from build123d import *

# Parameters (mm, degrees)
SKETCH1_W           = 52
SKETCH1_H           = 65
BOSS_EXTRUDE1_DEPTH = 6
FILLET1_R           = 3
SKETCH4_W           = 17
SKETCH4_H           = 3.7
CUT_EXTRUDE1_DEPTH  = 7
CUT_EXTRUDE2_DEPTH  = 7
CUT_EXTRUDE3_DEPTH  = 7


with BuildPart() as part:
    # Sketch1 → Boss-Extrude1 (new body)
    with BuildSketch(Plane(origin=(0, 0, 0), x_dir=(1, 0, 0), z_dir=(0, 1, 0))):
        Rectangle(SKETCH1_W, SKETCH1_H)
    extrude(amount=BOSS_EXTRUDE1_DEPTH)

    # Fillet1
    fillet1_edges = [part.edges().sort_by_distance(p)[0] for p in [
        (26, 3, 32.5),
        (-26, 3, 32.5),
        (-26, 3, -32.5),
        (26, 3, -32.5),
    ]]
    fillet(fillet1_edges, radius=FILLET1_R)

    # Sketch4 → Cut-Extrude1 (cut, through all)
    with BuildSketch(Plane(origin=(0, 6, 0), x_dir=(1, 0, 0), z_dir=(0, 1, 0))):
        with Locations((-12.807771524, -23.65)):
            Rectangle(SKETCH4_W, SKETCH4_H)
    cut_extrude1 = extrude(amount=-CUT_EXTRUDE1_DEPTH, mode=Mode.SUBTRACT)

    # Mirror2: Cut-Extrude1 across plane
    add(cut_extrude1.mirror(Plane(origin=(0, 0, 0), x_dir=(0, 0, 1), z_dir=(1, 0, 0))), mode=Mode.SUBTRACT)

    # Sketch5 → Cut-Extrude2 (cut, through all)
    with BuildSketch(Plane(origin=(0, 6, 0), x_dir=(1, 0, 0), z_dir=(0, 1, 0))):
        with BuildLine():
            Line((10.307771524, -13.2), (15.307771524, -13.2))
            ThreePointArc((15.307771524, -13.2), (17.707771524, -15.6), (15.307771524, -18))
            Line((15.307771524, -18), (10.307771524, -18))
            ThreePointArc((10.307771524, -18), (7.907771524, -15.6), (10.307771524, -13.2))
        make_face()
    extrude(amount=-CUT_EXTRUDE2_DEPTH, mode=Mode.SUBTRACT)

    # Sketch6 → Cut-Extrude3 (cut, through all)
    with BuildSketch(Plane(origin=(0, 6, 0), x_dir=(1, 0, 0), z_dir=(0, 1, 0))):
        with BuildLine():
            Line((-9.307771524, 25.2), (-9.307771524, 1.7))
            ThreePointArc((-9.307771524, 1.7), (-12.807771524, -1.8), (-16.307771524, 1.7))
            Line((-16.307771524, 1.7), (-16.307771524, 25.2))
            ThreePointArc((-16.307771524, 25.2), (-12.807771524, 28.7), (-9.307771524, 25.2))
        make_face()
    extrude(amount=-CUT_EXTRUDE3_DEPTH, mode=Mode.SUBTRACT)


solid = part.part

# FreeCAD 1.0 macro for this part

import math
import FreeCAD as App
import Part
import Sketcher
from FreeCAD import Vector


def edges_at(feature, points):
    """Names of the edges that pass closest to the given points."""
    edges = feature.Shape.Edges
    near = lambda p: min(range(len(edges)), key=lambda i: edges[i].distToShape(Part.Vertex(*p))[0])
    return sorted({f"Edge{near(p) + 1}" for p in points})

doc = App.newDocument("Part")
body = doc.addObject("PartDesign::Body", "Body")

# Sketch on XZ plane
sketch1 = body.newObject("Sketcher::SketchObject", "Sketch")
sketch1.AttachmentSupport = (doc.getObject("XZ_Plane"), [""])
sketch1.MapMode = "FlatFace"
sketch1.addGeometry(Part.LineSegment(Vector(-26, -32, 0), Vector(-26, 32, 0)), False)
sketch1.addGeometry(Part.LineSegment(Vector(-26, 32, 0), Vector(26, 32, 0)), False)
sketch1.addGeometry(Part.LineSegment(Vector(26, 32, 0), Vector(26, -32, 0)), False)
sketch1.addGeometry(Part.LineSegment(Vector(26, -32, 0), Vector(-26, -32, 0)), False)
sketch1.addConstraint(Sketcher.Constraint("Coincident", 0, 2, 1, 1))
sketch1.addConstraint(Sketcher.Constraint("Coincident", 1, 2, 2, 1))
sketch1.addConstraint(Sketcher.Constraint("Coincident", 2, 2, 3, 1))
sketch1.addConstraint(Sketcher.Constraint("Coincident", 3, 2, 0, 1))
sketch1.addConstraint(Sketcher.Constraint("Vertical", 0))
sketch1.addConstraint(Sketcher.Constraint("Horizontal", 1))
sketch1.addConstraint(Sketcher.Constraint("Vertical", 2))
sketch1.addConstraint(Sketcher.Constraint("Horizontal", 3))
sketch1.addConstraint(Sketcher.Constraint("Symmetric", 0, 2, 2, 2, -1, 1))
sketch1.addConstraint(Sketcher.Constraint("DistanceX", 1, 1, 1, 2, 52.0))
sketch1.addConstraint(Sketcher.Constraint("DistanceY", 0, 1, 0, 2, 65.0))
pad1 = body.newObject("PartDesign::Pad", "Pad")
pad1.Profile = sketch1
pad1.Length = 6
pad1.Reversed = True
doc.recompute()

fillet = body.newObject("PartDesign::Fillet", "Fillet")
fillet.Base = (pad1, edges_at(pad1, [
    (26, 3, 32.5),
    (-26, 3, 32.5),
    (-26, 3, -32.5),
    (26, 3, -32.5),
]))
fillet.Radius = 3

# Sketch on XZ plane
sketch2 = body.newObject("Sketcher::SketchObject", "Sketch001")
sketch2.AttachmentSupport = (doc.getObject("XZ_Plane"), [""])
sketch2.MapMode = "FlatFace"
sketch2.AttachmentOffset = App.Placement(Vector(0, 0, -6), App.Rotation())
sketch2.addGeometry(Part.LineSegment(Vector(-21.3, 21.8, 0), Vector(-21.3, 25.5, 0)), False)
sketch2.addGeometry(Part.LineSegment(Vector(-21.3, 25.5, 0), Vector(-4.3, 25.5, 0)), False)
sketch2.addGeometry(Part.LineSegment(Vector(-4.3, 25.5, 0), Vector(-4.3, 21.8, 0)), False)
sketch2.addGeometry(Part.LineSegment(Vector(-4.3, 21.8, 0), Vector(-21.3, 21.8, 0)), False)
sketch2.addConstraint(Sketcher.Constraint("Coincident", 0, 2, 1, 1))
sketch2.addConstraint(Sketcher.Constraint("Coincident", 1, 2, 2, 1))
sketch2.addConstraint(Sketcher.Constraint("Coincident", 2, 2, 3, 1))
sketch2.addConstraint(Sketcher.Constraint("Coincident", 3, 2, 0, 1))
sketch2.addConstraint(Sketcher.Constraint("Vertical", 0))
sketch2.addConstraint(Sketcher.Constraint("Horizontal", 1))
sketch2.addConstraint(Sketcher.Constraint("Vertical", 2))
sketch2.addConstraint(Sketcher.Constraint("Horizontal", 3))
sketch2.addConstraint(Sketcher.Constraint("DistanceX", 1, 1, 1, 2, 17.0))
sketch2.addConstraint(Sketcher.Constraint("DistanceY", 0, 1, 0, 2, 3.7))
sketch2.addConstraint(Sketcher.Constraint("DistanceY", -1, 1, 0, 2, 25.5))
sketch2.addConstraint(Sketcher.Constraint("DistanceX", 0, 2, -1, 1, 21.307772))
pocket1 = body.newObject("PartDesign::Pocket", "Pocket")
pocket1.Profile = sketch2
pocket1.Type = "ThroughAll"
pocket1.Reversed = True
doc.recompute()

mirrored = body.newObject("PartDesign::Mirrored", "Mirrored")
mirrored.Originals = [pocket1]
mirrored.MirrorPlane = (doc.getObject("YZ_Plane"), [""])
body.Tip = mirrored

# Sketch on XZ plane
sketch3 = body.newObject("Sketcher::SketchObject", "Sketch002")
sketch3.AttachmentSupport = (doc.getObject("XZ_Plane"), [""])
sketch3.MapMode = "FlatFace"
sketch3.AttachmentOffset = App.Placement(Vector(0, 0, -6), App.Rotation())
sketch3.addGeometry(Part.LineSegment(Vector(15.3, 13.2, 0), Vector(10.3, 13.2, 0)), False)
sketch3.addGeometry(Part.ArcOfCircle(Part.Circle(Vector(10.3, 15.6, 0), Vector(0, 0, 1), 2.4), math.radians(90), math.radians(270)), False)
sketch3.addGeometry(Part.LineSegment(Vector(10.3, 18, 0), Vector(15.3, 18, 0)), False)
sketch3.addGeometry(Part.ArcOfCircle(Part.Circle(Vector(15.3, 15.6, 0), Vector(0, 0, 1), 2.4), math.radians(-90), math.radians(90)), False)
sketch3.addConstraint(Sketcher.Constraint("Tangent", 0, 2, 1, 2))
sketch3.addConstraint(Sketcher.Constraint("Tangent", 1, 1, 2, 1))
sketch3.addConstraint(Sketcher.Constraint("Tangent", 2, 2, 3, 2))
sketch3.addConstraint(Sketcher.Constraint("Tangent", 3, 1, 0, 1))
sketch3.addConstraint(Sketcher.Constraint("Horizontal", 0))
sketch3.addConstraint(Sketcher.Constraint("Horizontal", 2))
sketch3.addConstraint(Sketcher.Constraint("Radius", 1, 2.4))
sketch3.addConstraint(Sketcher.Constraint("DistanceX", 0, 2, 0, 1, 5.0))
sketch3.addConstraint(Sketcher.Constraint("DistanceY", -1, 1, 1, 1, 18.0))
sketch3.addConstraint(Sketcher.Constraint("DistanceX", -1, 1, 1, 3, 10.307772))
pocket2 = body.newObject("PartDesign::Pocket", "Pocket001")
pocket2.Profile = sketch3
pocket2.Type = "ThroughAll"
pocket2.Reversed = True

# Sketch on XZ plane
sketch4 = body.newObject("Sketcher::SketchObject", "Sketch003")
sketch4.AttachmentSupport = (doc.getObject("XZ_Plane"), [""])
sketch4.MapMode = "FlatFace"
sketch4.AttachmentOffset = App.Placement(Vector(0, 0, -6), App.Rotation())
sketch4.addGeometry(Part.LineSegment(Vector(-9.3, -1.7, 0), Vector(-9.3, -25.2, 0)), False)
sketch4.addGeometry(Part.ArcOfCircle(Part.Circle(Vector(-12.8, -25.2, 0), Vector(0, 0, 1), 3.5), math.radians(180), math.radians(360)), False)
sketch4.addGeometry(Part.LineSegment(Vector(-16.3, -25.2, 0), Vector(-16.3, -1.7, 0)), False)
sketch4.addGeometry(Part.ArcOfCircle(Part.Circle(Vector(-12.8, -1.7, 0), Vector(0, 0, 1), 3.5), math.radians(0), math.radians(180)), False)
sketch4.addConstraint(Sketcher.Constraint("Tangent", 0, 2, 1, 2))
sketch4.addConstraint(Sketcher.Constraint("Tangent", 1, 1, 2, 1))
sketch4.addConstraint(Sketcher.Constraint("Tangent", 2, 2, 3, 2))
sketch4.addConstraint(Sketcher.Constraint("Tangent", 3, 1, 0, 1))
sketch4.addConstraint(Sketcher.Constraint("Vertical", 0))
sketch4.addConstraint(Sketcher.Constraint("Vertical", 2))
sketch4.addConstraint(Sketcher.Constraint("Radius", 1, 3.5))
sketch4.addConstraint(Sketcher.Constraint("DistanceY", 0, 2, 0, 1, 23.5))
sketch4.addConstraint(Sketcher.Constraint("DistanceY", 1, 3, -1, 1, 25.2))
sketch4.addConstraint(Sketcher.Constraint("DistanceX", 1, 3, -1, 1, 12.807772))
pocket3 = body.newObject("PartDesign::Pocket", "Pocket002")
pocket3.Profile = sketch4
pocket3.Type = "ThroughAll"
pocket3.Reversed = True

doc.recompute()
